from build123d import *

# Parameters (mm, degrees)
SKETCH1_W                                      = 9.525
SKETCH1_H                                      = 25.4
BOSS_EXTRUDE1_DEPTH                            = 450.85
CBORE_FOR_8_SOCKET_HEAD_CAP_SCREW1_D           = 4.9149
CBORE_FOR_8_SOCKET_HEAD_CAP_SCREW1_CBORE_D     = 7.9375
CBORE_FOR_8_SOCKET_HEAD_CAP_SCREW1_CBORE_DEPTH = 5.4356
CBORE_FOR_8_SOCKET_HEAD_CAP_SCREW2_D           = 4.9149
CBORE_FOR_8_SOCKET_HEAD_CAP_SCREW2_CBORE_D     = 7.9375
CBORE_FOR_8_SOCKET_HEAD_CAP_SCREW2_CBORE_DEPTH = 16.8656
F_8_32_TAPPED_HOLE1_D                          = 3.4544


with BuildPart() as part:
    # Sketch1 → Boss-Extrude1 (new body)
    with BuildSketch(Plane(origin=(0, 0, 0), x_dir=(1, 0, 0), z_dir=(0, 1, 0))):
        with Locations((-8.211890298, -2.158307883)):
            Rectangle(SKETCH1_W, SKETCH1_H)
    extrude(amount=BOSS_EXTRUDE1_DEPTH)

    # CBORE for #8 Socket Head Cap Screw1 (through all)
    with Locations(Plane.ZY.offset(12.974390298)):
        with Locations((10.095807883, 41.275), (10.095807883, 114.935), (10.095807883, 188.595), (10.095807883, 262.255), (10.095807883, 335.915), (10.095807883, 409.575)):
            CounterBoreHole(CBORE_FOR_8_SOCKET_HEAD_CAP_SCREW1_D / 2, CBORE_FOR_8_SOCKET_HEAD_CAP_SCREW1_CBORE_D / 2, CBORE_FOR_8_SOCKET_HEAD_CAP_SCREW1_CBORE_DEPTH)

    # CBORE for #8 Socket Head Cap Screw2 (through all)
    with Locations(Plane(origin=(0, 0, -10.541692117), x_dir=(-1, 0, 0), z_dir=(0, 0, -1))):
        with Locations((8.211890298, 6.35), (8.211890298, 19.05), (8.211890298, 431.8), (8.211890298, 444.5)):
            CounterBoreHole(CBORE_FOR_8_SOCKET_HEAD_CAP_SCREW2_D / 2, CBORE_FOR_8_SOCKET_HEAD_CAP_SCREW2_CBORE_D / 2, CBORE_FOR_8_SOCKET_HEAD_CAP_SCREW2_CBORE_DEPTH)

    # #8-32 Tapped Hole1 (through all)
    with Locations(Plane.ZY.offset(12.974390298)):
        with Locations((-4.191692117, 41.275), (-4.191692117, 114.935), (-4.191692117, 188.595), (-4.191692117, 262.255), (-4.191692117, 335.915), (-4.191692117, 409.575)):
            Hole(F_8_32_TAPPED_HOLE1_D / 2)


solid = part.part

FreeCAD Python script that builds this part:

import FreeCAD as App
import Part
import Sketcher

V = App.Vector
Q = App.Units.Quantity


def add_polygon(sketch, points):
    """Adds a closed chain of lines whose ends are joined by coincident constraints."""
    first, n = sketch.GeometryCount, len(points)
    for a, b in zip(points, points[1:] + points[:1]):
        sketch.addGeometry(Part.LineSegment(App.Vector(*a, 0), App.Vector(*b, 0)), False)
    for i in range(n):
        sketch.addConstraint(Sketcher.Constraint("Coincident", first + i, 2, first + (i + 1) % n, 1))

doc = App.newDocument("Part")
body = doc.addObject("PartDesign::Body", "Body")

sketch1 = body.newObject("Sketcher::SketchObject", "Sketch")
sketch1.AttachmentSupport = (doc.getObject("XZ_Plane"), [""])
sketch1.MapMode = "FlatFace"
add_polygon(sketch1, [(-13, -11), (-13, 15), (-3, 15), (-3, -11)])
sketch1.addConstraint([
    Sketcher.Constraint("Vertical", 0),
    Sketcher.Constraint("Horizontal", 1),
    Sketcher.Constraint("Vertical", 2),
    Sketcher.Constraint("Horizontal", 3),
    Sketcher.Constraint("DistanceY", 0, 1, 0, 2, Q("1 in")),
    Sketcher.Constraint("DistanceX", 1, 1, 1, 2, Q("0.375 in")),
    Sketcher.Constraint("DistanceX", 0, 2, -1, 1, Q("12.97439 mm")),
    Sketcher.Constraint("DistanceY", -1, 1, 0, 2, Q("14.858308 mm")),
])
pad1 = body.newObject("PartDesign::Pad", "Pad")
pad1.Profile = sketch1
pad1.Length = Q("17.75 in")
pad1.Reversed = True

sketch2 = body.newObject("Sketcher::SketchObject", "Sketch001")
sketch2.AttachmentSupport = (doc.getObject("YZ_Plane"), [""])
sketch2.MapMode = "FlatFace"
sketch2.AttachmentOffset = App.Placement(V(0, 0, -12.97439), App.Rotation())
sketch2.addGeometry([
    Part.Circle(V(41.3, 10.1, 0), V(0, 0, 1), 2.5),
    Part.Circle(V(114.9, 10.1, 0), V(0, 0, 1), 2.5),
    Part.Circle(V(188.6, 10.1, 0), V(0, 0, 1), 2.5),
    Part.Circle(V(262.3, 10.1, 0), V(0, 0, 1), 2.5),
    Part.Circle(V(335.9, 10.1, 0), V(0, 0, 1), 2.5),
    Part.Circle(V(409.6, 10.1, 0), V(0, 0, 1), 2.5),
], False)
sketch2.addConstraint([
    Sketcher.Constraint("Equal", 0, 1),
    Sketcher.Constraint("Equal", 1, 2),
    Sketcher.Constraint("Equal", 2, 3),
    Sketcher.Constraint("Equal", 3, 4),
    Sketcher.Constraint("Equal", 4, 5),
    Sketcher.Constraint("Horizontal", 0, 3, 1, 3),
    Sketcher.Constraint("Horizontal", 1, 3, 2, 3),
    Sketcher.Constraint("Horizontal", 2, 3, 3, 3),
    Sketcher.Constraint("Horizontal", 3, 3, 4, 3),
    Sketcher.Constraint("Horizontal", 4, 3, 5, 3),
    Sketcher.Constraint("Diameter", 0, Q("0.1935 in")),
    Sketcher.Constraint("DistanceX", 0, 3, 1, 3, Q("2.9 in")),
    Sketcher.Constraint("DistanceX", 1, 3, 2, 3, Q("2.9 in")),
    Sketcher.Constraint("DistanceX", 2, 3, 3, 3, Q("2.9 in")),
    Sketcher.Constraint("DistanceX", 3, 3, 4, 3, Q("2.9 in")),
    Sketcher.Constraint("DistanceX", 4, 3, 5, 3, Q("2.9 in")),
    Sketcher.Constraint("DistanceX", -1, 1, 0, 3, Q("1.625 in")),
    Sketcher.Constraint("DistanceY", -1, 1, 0, 3, Q("10.095808 mm")),
])
doc.recompute()
hole = body.newObject("PartDesign::Hole", "Hole")
hole.Profile = sketch2
hole.ThreadType = "None"
hole.Diameter = Q("0.1935 in")
hole.DepthType = "ThroughAll"
hole.HoleCutType = "Counterbore"
hole.HoleCutDiameter = Q("0.3125 in")
hole.HoleCutDepth = Q("0.214 in")
hole.Reversed = True

sketch3 = body.newObject("Sketcher::SketchObject", "Sketch002")
sketch3.AttachmentSupport = (doc.getObject("XY_Plane"), [""])
sketch3.MapMode = "FlatFace"
sketch3.AttachmentOffset = App.Placement(V(0, 0, -10.541692), App.Rotation())
sketch3.addGeometry([
    Part.Circle(V(-8.2, 6.3, 0), V(0, 0, 1), 2.5),
    Part.Circle(V(-8.2, 19.1, 0), V(0, 0, 1), 2.5),
    Part.Circle(V(-8.2, 431.8, 0), V(0, 0, 1), 2.5),
    Part.Circle(V(-8.2, 444.5, 0), V(0, 0, 1), 2.5),
], False)
sketch3.addConstraint([
    Sketcher.Constraint("Equal", 0, 1),
    Sketcher.Constraint("Equal", 1, 2),
    Sketcher.Constraint("Equal", 2, 3),
    Sketcher.Constraint("Vertical", 0, 3, 1, 3),
    Sketcher.Constraint("Vertical", 1, 3, 2, 3),
    Sketcher.Constraint("Vertical", 2, 3, 3, 3),
    Sketcher.Constraint("DistanceY", -1, 1, 2, 3, Q("17 in")),
    Sketcher.Constraint("Diameter", 0, Q("0.1935 in")),
    Sketcher.Constraint("DistanceY", -1, 1, 3, 3, Q("17.5 in")),
    Sketcher.Constraint("DistanceY", 0, 3, 1, 3, Q("0.5 in")),
    Sketcher.Constraint("DistanceY", -1, 1, 0, 3, Q("0.25 in")),
    Sketcher.Constraint("DistanceX", 0, 3, -1, 1, Q("8.21189 mm")),
])
doc.recompute()
hole2 = body.newObject("PartDesign::Hole", "Hole001")
hole2.Profile = sketch3
hole2.ThreadType = "None"
hole2.Diameter = Q("0.1935 in")
hole2.DepthType = "ThroughAll"
hole2.HoleCutType = "Counterbore"
hole2.HoleCutDiameter = Q("0.3125 in")
hole2.HoleCutDepth = Q("0.664 in")
hole2.Reversed = True

sketch4 = body.newObject("Sketcher::SketchObject", "Sketch003")
sketch4.AttachmentSupport = (doc.getObject("YZ_Plane"), [""])
sketch4.MapMode = "FlatFace"
sketch4.AttachmentOffset = App.Placement(V(0, 0, -12.97439), App.Rotation())
sketch4.addGeometry([
    Part.Circle(V(41.3, -4.2, 0), V(0, 0, 1), 1.7),
    Part.Circle(V(114.9, -4.2, 0), V(0, 0, 1), 1.7),
    Part.Circle(V(188.6, -4.2, 0), V(0, 0, 1), 1.7),
    Part.Circle(V(262.3, -4.2, 0), V(0, 0, 1), 1.7),
    Part.Circle(V(335.9, -4.2, 0), V(0, 0, 1), 1.7),
    Part.Circle(V(409.6, -4.2, 0), V(0, 0, 1), 1.7),
], False)
sketch4.addConstraint([
    Sketcher.Constraint("Equal", 0, 1),
    Sketcher.Constraint("Equal", 1, 2),
    Sketcher.Constraint("Equal", 2, 3),
    Sketcher.Constraint("Equal", 3, 4),
    Sketcher.Constraint("Equal", 4, 5),
    Sketcher.Constraint("Horizontal", 0, 3, 1, 3),
    Sketcher.Constraint("Horizontal", 1, 3, 2, 3),
    Sketcher.Constraint("Horizontal", 2, 3, 3, 3),
    Sketcher.Constraint("Horizontal", 3, 3, 4, 3),
    Sketcher.Constraint("Horizontal", 4, 3, 5, 3),
    Sketcher.Constraint("Diameter", 0, Q("0.136 in")),
    Sketcher.Constraint("DistanceX", 0, 3, 1, 3, Q("2.9 in")),
    Sketcher.Constraint("DistanceX", 1, 3, 2, 3, Q("2.9 in")),
    Sketcher.Constraint("DistanceX", 2, 3, 3, 3, Q("2.9 in")),
    Sketcher.Constraint("DistanceX", 3, 3, 4, 3, Q("2.9 in")),
    Sketcher.Constraint("DistanceX", 4, 3, 5, 3, Q("2.9 in")),
    Sketcher.Constraint("DistanceX", -1, 1, 0, 3, Q("1.625 in")),
    Sketcher.Constraint("DistanceY", 0, 3, -1, 1, Q("4.191692 mm")),
])
doc.recompute()
hole3 = body.newObject("PartDesign::Hole", "Hole002")
hole3.Profile = sketch4
hole3.ThreadType = "None"
hole3.Diameter = Q("0.136 in")
hole3.DepthType = "ThroughAll"
hole3.Reversed = True

doc.recompute()
